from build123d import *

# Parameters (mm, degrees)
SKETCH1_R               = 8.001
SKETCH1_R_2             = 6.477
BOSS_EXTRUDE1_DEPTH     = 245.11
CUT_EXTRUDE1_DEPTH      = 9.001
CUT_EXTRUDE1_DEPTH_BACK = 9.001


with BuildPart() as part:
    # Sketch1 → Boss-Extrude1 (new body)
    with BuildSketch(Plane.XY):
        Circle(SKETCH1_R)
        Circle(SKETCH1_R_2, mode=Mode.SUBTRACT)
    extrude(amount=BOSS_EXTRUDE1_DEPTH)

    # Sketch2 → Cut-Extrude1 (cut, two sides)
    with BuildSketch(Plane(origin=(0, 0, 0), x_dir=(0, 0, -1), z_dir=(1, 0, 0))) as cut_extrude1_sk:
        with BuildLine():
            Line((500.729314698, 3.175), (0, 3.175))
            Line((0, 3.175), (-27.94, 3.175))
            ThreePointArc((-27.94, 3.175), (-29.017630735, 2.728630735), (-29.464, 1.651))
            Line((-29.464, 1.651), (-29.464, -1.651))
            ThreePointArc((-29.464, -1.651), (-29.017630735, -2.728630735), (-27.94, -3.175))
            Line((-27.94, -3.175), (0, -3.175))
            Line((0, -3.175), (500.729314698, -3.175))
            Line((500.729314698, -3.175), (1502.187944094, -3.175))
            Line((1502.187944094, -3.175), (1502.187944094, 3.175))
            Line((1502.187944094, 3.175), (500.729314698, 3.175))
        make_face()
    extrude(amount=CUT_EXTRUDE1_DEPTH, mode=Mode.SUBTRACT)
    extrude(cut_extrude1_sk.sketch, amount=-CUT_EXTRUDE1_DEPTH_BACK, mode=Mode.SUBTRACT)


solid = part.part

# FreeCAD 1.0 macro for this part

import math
import FreeCAD as App
import Part
import Sketcher
from FreeCAD import Vector
Q = App.Units.Quantity

doc = App.newDocument("Part")
body = doc.addObject("PartDesign::Body", "Body")

# Sketch on XY plane
sketch1 = doc.addObject("Sketcher::SketchObject", "Sketch")
body.addObject(sketch1)
sketch1.AttachmentSupport = (doc.XY_Plane, [""])
sketch1.MapMode = "FlatFace"
sketch1.addGeometry([
    Part.Circle(Vector(0, 0, 0), Vector(0, 0, 1), 8.001),
    Part.Circle(Vector(0, 0, 0), Vector(0, 0, 1), 6.477),
], False)
sketch1.addConstraint([
    Sketcher.Constraint("Coincident", 0, 3, -1, 1),
    Sketcher.Constraint("Coincident", 1, 3, -1, 1),
    Sketcher.Constraint("Diameter", 0, Q("0.63 in")),
    Sketcher.Constraint("Diameter", 1, Q("0.51 in")),
])
pad1 = doc.addObject("PartDesign::Pad", "Pad")
body.addObject(pad1)
pad1.Profile = sketch1
pad1.Length = Q("9.65 in")

# Sketch on YZ plane
sketch2 = doc.addObject("Sketcher::SketchObject", "Sketch001")
body.addObject(sketch2)
sketch2.AttachmentSupport = (doc.YZ_Plane, [""])
sketch2.MapMode = "FlatFace"
sketch2.addGeometry([
    Part.ArcOfCircle(Part.Circle(Vector(1.651, 27.94, 0), Vector(0, 0, 1), 1.524), math.radians(0), math.radians(90)),  # 0
    Part.LineSegment(Vector(1.651, 29.464, 0), Vector(-1.651, 29.464, 0)),  # 1
    Part.ArcOfCircle(Part.Circle(Vector(-1.651, 27.94, 0), Vector(0, 0, 1), 1.524), math.radians(90), math.radians(180)),  # 2
    Part.LineSegment(Vector(-3.175, 27.94, 0), Vector(-3.175, -1502.187944, 0)),  # 3
    Part.LineSegment(Vector(-3.175, -1502.187944, 0), Vector(3.175, -1502.187944, 0)),  # 4
    Part.LineSegment(Vector(3.175, -1502.187944, 0), Vector(3.175, 27.94, 0)),  # 5
], False)
sketch2.addConstraint([
    Sketcher.Constraint("Tangent", 0, 2, 1, 1),
    Sketcher.Constraint("Tangent", 1, 2, 2, 1),
    Sketcher.Constraint("Tangent", 2, 2, 3, 1),
    Sketcher.Constraint("Coincident", 3, 2, 4, 1),
    Sketcher.Constraint("Coincident", 4, 2, 5, 1),
    Sketcher.Constraint("Tangent", 5, 2, 0, 1),
    Sketcher.Constraint("Horizontal", 1),
    Sketcher.Constraint("Vertical", 3),
    Sketcher.Constraint("Horizontal", 4),
    Sketcher.Constraint("Vertical", 5),
    Sketcher.Constraint("Equal", 0, 2),
    Sketcher.Constraint("Radius", 0, Q("0.06 in")),
    Sketcher.Constraint("DistanceX", 1, 2, 1, 1, Q("0.13 in")),
    Sketcher.Constraint("DistanceY", -1, 1, 0, 3, Q("1.1 in")),
    Sketcher.Constraint("DistanceX", -1, 1, 0, 3, Q("0.065 in")),
    Sketcher.Constraint("DistanceY", 3, 2, 3, 1, 1530.127944),
])
pocket1 = doc.addObject("PartDesign::Pocket", "Pocket")
body.addObject(pocket1)
pocket1.Profile = sketch2
pocket1.Type = "ThroughAll"
pocket1.Midplane = True

doc.recompute()
